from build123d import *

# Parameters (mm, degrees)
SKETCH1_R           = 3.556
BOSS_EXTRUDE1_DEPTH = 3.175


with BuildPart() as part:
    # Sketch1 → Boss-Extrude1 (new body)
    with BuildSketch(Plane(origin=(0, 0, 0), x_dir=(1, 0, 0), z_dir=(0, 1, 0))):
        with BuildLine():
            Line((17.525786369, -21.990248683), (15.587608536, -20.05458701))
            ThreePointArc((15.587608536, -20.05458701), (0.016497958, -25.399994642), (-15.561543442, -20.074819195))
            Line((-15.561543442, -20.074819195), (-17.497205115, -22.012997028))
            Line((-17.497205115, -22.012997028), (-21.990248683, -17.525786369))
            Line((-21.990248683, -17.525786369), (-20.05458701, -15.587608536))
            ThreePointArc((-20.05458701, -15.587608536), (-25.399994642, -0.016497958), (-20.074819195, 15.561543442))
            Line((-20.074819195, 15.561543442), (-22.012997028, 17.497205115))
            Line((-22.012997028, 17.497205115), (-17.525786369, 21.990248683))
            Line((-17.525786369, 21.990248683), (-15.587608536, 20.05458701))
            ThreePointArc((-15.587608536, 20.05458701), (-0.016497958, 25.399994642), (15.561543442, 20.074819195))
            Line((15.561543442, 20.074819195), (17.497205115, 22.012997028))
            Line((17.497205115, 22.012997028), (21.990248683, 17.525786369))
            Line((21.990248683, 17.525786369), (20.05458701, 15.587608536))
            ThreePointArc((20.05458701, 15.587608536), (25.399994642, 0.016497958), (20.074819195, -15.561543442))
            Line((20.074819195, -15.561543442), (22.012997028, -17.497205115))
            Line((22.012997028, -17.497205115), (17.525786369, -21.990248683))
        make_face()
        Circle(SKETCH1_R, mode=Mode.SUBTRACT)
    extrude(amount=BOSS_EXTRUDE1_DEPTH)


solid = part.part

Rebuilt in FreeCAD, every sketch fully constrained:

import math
import FreeCAD as App
import Part
import Sketcher
Q = App.Units.Quantity

doc = App.newDocument("Part")
params = doc.addObject("Spreadsheet::Sheet", "Params")
for row, (alias, value) in enumerate([
    ("sketch1_radius", "1 in"),
    ("sketch1_diameter", "0.28 in"),
    ("sketch1_length", "0.25 in"),
    ("pad1_length", "0.125 in"),
], start=1):
    params.set(f"A{row}", alias)
    params.set(f"B{row}", "=" + value)
    params.setAlias(f"B{row}", alias)

body = doc.addObject("PartDesign::Body", "Body")

# Sketch on XZ plane
sketch1 = body.newObject("Sketcher::SketchObject", "Sketch")
sketch1.AttachmentSupport = (doc.getObject("XZ_Plane"), [""])
sketch1.MapMode = "FlatFace"
sketch1.addGeometry([
    Part.LineSegment(App.Vector(15.6, 20.1, 0), App.Vector(17.5, 22, 0)),  # 0
    Part.LineSegment(App.Vector(17.5, 22, 0), App.Vector(22, 17.5, 0)),  # 1
    Part.LineSegment(App.Vector(22, 17.5, 0), App.Vector(20.1, 15.6, 0)),  # 2
    Part.ArcOfCircle(Part.Circle(App.Vector(0, 0, 0), App.Vector(0, 0, 1), 25.4), math.radians(-38), math.radians(38)),  # 3
    Part.LineSegment(App.Vector(20.1, -15.6, 0), App.Vector(22, -17.5, 0)),  # 4
    Part.LineSegment(App.Vector(22, -17.5, 0), App.Vector(17.5, -22, 0)),  # 5
    Part.LineSegment(App.Vector(17.5, -22, 0), App.Vector(15.6, -20.1, 0)),  # 6
    Part.ArcOfCircle(Part.Circle(App.Vector(0, 0, 0), App.Vector(0, 0, 1), 25.4), math.radians(-128), math.radians(-52)),  # 7
    Part.LineSegment(App.Vector(-15.6, -20.1, 0), App.Vector(-17.5, -22, 0)),  # 8
    Part.LineSegment(App.Vector(-17.5, -22, 0), App.Vector(-22, -17.5, 0)),  # 9
    Part.LineSegment(App.Vector(-22, -17.5, 0), App.Vector(-20.1, -15.6, 0)),  # 10
    Part.ArcOfCircle(Part.Circle(App.Vector(0, 0, 0), App.Vector(0, 0, 1), 25.4), math.radians(142), math.radians(218)),  # 11
    Part.LineSegment(App.Vector(-20.1, 15.6, 0), App.Vector(-22, 17.5, 0)),  # 12
    Part.LineSegment(App.Vector(-22, 17.5, 0), App.Vector(-17.5, 22, 0)),  # 13
    Part.LineSegment(App.Vector(-17.5, 22, 0), App.Vector(-15.6, 20.1, 0)),  # 14
    Part.ArcOfCircle(Part.Circle(App.Vector(0, 0, 0), App.Vector(0, 0, 1), 25.4), math.radians(52), math.radians(128)),  # 15
    Part.Circle(App.Vector(0, 0, 0), App.Vector(0, 0, 1), 3.6),  # 16
], False)
sketch1.addConstraint([
    Sketcher.Constraint("Coincident", 0, 2, 1, 1),
    Sketcher.Constraint("Coincident", 1, 2, 2, 1),
    Sketcher.Constraint("Coincident", 2, 2, 3, 2),
    Sketcher.Constraint("Coincident", 3, 1, 4, 1),
    Sketcher.Constraint("Coincident", 4, 2, 5, 1),
    Sketcher.Constraint("Coincident", 5, 2, 6, 1),
    Sketcher.Constraint("Coincident", 6, 2, 7, 2),
    Sketcher.Constraint("Coincident", 7, 1, 8, 1),
    Sketcher.Constraint("Coincident", 8, 2, 9, 1),
    Sketcher.Constraint("Coincident", 9, 2, 10, 1),
    Sketcher.Constraint("Coincident", 10, 2, 11, 2),
    Sketcher.Constraint("Coincident", 11, 1, 12, 1),
    Sketcher.Constraint("Coincident", 12, 2, 13, 1),
    Sketcher.Constraint("Coincident", 13, 2, 14, 1),
    Sketcher.Constraint("Coincident", 14, 2, 15, 2),
    Sketcher.Constraint("Coincident", 15, 1, 0, 1),
    Sketcher.Constraint("Coincident", 3, 3, -1, 1),
    Sketcher.Constraint("Coincident", 7, 3, -1, 1),
    Sketcher.Constraint("Coincident", 11, 3, -1, 1),
    Sketcher.Constraint("Coincident", 15, 3, -1, 1),
    Sketcher.Constraint("Coincident", 16, 3, -1, 1),
    Sketcher.Constraint("Equal", 3, 7),
    Sketcher.Constraint("Equal", 7, 11),
    Sketcher.Constraint("Equal", 11, 15),
    Sketcher.Constraint("Symmetric", 0, 2, 8, 2, -1, 1),
    Sketcher.Constraint("Symmetric", 1, 2, 9, 2, -1, 1),
    Sketcher.Constraint("Symmetric", 4, 2, 12, 2, -1, 1),
    Sketcher.Constraint("Symmetric", 5, 2, 13, 2, -1, 1),
    Sketcher.Constraint("Perpendicular", 0, 1),
    Sketcher.Constraint("Perpendicular", 1, 2),
    Sketcher.Constraint("Perpendicular", 2, 4),
    Sketcher.Constraint("Perpendicular", 4, 5),
    Sketcher.Constraint("Perpendicular", 5, 6),
    Sketcher.Constraint("Perpendicular", 6, 8),
    Sketcher.Constraint("Perpendicular", 9, 10),
    Sketcher.Constraint("Perpendicular", 10, 12),
    Sketcher.Constraint("Perpendicular", 13, 14),
    Sketcher.Constraint("Equal", 0, 2),
    Sketcher.Constraint("Equal", 2, 4),
    Sketcher.Constraint("Equal", 1, 5),
    Sketcher.Constraint("Equal", 4, 6),
    Sketcher.Constraint("Radius", 3, Q("1 in")),
    Sketcher.Constraint("Diameter", 16, Q("0.28 in")),
    Sketcher.Constraint("Distance", 1, Q("0.25 in")),
    Sketcher.Constraint("Distance", 0, 2.739219),
    Sketcher.Constraint("DistanceY", -1, 1, 0, 2, 21.990249),
])
sketch1.setExpression("Constraints[41]", "Params.sketch1_radius")
sketch1.setExpression("Constraints[42]", "Params.sketch1_diameter")
sketch1.setExpression("Constraints[43]", "Params.sketch1_length")
pad1 = body.newObject("PartDesign::Pad", "Pad")
pad1.Profile = sketch1
pad1.setExpression("Length", "Params.pad1_length")
pad1.Reversed = True

doc.recompute()
